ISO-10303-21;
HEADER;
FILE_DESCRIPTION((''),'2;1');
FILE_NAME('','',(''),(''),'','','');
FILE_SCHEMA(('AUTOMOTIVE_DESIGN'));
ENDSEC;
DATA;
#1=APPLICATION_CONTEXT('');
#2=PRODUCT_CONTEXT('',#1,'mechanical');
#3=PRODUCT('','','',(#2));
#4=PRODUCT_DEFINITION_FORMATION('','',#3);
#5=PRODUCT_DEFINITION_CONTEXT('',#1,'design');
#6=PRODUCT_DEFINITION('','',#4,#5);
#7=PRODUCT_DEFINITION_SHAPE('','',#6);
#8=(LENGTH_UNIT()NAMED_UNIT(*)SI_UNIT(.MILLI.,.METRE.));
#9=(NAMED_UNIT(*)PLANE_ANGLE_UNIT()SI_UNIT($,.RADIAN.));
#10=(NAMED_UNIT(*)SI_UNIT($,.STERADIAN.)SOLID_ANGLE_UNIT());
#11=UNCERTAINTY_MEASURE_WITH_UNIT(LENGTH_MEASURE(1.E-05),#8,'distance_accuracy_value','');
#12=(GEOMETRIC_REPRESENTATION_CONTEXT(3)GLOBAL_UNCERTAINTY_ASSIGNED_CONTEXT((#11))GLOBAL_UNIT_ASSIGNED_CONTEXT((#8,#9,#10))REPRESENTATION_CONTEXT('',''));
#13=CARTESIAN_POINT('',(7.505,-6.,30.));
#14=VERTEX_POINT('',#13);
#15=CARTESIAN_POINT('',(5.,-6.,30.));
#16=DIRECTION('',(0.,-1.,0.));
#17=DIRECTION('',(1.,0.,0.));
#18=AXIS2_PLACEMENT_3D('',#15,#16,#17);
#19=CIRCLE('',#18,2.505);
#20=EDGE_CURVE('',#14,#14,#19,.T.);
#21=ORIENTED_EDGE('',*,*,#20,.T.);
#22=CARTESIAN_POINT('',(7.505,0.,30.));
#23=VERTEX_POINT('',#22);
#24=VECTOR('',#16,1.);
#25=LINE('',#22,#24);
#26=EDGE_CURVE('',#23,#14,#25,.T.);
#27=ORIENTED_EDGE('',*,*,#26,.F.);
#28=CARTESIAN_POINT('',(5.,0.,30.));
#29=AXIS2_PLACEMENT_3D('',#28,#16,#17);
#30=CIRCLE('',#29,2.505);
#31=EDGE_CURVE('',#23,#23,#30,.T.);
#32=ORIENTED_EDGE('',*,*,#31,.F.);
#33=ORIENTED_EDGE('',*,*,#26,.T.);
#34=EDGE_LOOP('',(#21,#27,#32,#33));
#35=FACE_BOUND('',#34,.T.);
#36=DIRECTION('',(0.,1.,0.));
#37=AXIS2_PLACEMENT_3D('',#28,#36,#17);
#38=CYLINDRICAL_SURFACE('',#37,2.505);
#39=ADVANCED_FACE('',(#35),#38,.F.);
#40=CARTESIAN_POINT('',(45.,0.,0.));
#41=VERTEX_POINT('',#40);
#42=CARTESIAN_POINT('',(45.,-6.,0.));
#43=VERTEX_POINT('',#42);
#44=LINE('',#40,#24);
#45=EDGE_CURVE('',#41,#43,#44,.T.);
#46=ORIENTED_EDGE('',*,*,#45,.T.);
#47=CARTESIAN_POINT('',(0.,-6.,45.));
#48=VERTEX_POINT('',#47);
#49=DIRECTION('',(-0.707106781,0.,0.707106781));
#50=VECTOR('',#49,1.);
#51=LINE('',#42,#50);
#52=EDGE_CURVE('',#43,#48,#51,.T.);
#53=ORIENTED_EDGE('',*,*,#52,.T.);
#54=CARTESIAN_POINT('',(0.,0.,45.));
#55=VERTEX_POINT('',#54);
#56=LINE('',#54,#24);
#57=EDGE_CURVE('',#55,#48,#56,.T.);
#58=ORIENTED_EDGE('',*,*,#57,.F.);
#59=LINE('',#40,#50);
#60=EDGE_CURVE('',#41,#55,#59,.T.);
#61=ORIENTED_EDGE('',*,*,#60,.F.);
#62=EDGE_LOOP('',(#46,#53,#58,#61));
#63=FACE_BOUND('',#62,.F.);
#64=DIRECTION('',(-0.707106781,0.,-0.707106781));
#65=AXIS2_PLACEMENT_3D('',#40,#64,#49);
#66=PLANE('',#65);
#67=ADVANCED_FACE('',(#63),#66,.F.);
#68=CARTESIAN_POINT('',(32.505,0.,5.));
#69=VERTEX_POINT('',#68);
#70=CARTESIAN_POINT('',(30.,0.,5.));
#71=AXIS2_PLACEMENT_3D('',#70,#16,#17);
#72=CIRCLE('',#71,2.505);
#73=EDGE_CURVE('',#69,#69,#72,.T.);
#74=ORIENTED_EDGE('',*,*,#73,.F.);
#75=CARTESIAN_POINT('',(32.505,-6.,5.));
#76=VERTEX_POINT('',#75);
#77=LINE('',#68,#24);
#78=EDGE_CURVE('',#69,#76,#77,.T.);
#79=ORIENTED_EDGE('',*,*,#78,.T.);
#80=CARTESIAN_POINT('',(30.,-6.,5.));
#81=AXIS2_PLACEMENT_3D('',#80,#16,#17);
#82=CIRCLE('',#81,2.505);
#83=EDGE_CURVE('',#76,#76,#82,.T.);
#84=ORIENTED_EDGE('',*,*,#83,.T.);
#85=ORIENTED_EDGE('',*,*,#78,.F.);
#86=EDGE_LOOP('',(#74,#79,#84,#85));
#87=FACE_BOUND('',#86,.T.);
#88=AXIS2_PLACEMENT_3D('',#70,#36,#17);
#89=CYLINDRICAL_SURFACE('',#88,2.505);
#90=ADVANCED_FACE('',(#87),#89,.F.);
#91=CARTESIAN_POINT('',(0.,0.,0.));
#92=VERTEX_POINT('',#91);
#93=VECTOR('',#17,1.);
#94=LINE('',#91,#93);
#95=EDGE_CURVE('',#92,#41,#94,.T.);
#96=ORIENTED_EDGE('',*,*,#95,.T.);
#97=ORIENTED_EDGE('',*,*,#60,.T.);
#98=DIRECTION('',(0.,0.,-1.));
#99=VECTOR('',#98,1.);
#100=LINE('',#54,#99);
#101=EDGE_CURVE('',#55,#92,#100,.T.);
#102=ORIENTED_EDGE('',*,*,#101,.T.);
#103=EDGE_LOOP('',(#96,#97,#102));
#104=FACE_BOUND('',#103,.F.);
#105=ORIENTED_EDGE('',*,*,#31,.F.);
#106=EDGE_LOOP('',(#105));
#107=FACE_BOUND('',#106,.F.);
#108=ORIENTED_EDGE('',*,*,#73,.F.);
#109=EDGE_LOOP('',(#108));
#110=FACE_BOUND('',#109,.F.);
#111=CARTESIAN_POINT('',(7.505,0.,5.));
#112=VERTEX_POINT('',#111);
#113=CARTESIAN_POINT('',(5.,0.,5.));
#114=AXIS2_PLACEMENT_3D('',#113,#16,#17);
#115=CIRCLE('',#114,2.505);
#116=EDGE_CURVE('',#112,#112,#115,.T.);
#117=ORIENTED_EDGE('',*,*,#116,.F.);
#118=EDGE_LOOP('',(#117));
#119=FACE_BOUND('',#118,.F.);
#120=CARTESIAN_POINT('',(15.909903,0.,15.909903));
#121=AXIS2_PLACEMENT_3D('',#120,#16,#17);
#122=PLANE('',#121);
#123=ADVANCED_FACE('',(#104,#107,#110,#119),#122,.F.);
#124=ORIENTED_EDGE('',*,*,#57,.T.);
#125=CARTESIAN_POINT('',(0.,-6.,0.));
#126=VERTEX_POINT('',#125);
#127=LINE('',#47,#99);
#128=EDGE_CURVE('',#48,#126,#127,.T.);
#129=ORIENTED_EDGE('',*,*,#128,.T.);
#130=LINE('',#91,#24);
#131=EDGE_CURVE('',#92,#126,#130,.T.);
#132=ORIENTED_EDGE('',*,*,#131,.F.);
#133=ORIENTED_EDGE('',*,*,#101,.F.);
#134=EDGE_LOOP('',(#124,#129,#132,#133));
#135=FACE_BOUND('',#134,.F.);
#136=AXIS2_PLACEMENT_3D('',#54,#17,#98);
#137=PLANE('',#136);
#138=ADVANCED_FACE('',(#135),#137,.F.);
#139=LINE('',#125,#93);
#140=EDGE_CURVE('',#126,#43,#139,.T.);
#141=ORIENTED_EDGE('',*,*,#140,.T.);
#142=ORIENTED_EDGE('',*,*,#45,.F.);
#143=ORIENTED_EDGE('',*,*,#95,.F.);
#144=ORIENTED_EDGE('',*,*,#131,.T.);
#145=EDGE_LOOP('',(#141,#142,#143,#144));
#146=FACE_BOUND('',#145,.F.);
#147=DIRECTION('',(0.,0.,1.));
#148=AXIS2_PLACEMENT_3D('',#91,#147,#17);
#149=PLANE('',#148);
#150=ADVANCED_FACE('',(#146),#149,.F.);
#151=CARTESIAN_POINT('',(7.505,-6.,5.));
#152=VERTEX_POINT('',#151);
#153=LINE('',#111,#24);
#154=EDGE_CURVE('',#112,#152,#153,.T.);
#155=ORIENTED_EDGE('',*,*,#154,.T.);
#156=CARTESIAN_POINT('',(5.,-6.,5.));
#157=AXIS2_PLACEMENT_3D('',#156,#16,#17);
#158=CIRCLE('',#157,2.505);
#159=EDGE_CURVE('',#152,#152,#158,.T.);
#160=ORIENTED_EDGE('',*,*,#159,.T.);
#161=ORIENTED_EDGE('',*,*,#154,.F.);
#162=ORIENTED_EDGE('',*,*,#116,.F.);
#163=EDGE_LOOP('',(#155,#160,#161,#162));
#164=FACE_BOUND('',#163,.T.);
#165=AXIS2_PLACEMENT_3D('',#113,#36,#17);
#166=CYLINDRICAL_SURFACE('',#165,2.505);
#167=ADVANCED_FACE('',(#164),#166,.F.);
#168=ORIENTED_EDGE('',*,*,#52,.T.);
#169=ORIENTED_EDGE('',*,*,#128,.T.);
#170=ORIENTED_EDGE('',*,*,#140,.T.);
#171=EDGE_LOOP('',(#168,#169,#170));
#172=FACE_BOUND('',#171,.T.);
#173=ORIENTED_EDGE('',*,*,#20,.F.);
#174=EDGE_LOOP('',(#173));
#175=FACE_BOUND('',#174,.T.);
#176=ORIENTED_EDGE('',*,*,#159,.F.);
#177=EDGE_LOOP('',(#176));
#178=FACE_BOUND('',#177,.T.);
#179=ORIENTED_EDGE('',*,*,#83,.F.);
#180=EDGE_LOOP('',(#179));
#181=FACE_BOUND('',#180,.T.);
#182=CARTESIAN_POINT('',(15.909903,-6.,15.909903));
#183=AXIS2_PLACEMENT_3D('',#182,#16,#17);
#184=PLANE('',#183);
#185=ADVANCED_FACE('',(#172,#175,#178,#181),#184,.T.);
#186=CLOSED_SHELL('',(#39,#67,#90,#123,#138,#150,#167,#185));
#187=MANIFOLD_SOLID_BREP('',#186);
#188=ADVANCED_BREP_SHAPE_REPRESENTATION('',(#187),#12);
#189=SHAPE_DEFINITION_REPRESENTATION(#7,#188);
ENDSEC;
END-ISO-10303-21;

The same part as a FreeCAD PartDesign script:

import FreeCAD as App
import Part
import Sketcher

V = App.Vector

doc = App.newDocument("Part")
params = doc.addObject("Spreadsheet::Sheet", "Params")
for row, (alias, value) in enumerate([
    ("sketch1_diameter", "5.01 mm"),
    ("sketch1_width", "45 mm"),
    ("pad1_length", "6 mm"),
], start=1):
    params.set(f"A{row}", alias)
    params.set(f"B{row}", "=" + value)
    params.setAlias(f"B{row}", alias)

body = doc.addObject("PartDesign::Body", "Body")

sketch1 = doc.addObject("Sketcher::SketchObject", "Sketch")
body.addObject(sketch1)
sketch1.AttachmentSupport = (doc.XZ_Plane, [""])
sketch1.MapMode = "FlatFace"
sketch1.addGeometry([
    Part.LineSegment(V(0, 45, 0), V(0, 0, 0)),
    Part.LineSegment(V(0, 0, 0), V(45, 0, 0)),
    Part.LineSegment(V(45, 0, 0), V(0, 45, 0)),
    Part.Circle(V(5, 5, 0), V(0, 0, 1), 2.505),
    Part.Circle(V(30, 5, 0), V(0, 0, 1), 2.505),
    Part.Circle(V(5, 30, 0), V(0, 0, 1), 2.505),
], False)
sketch1.addConstraint([
    Sketcher.Constraint("Coincident", 0, 2, 1, 1),
    Sketcher.Constraint("Coincident", 1, 2, 2, 1),
    Sketcher.Constraint("Coincident", 2, 2, 0, 1),
    Sketcher.Constraint("Vertical", 0),
    Sketcher.Constraint("Horizontal", 1),
    Sketcher.Constraint("Coincident", 0, 2, -1, 1),
    Sketcher.Constraint("Equal", 3, 4),
    Sketcher.Constraint("Equal", 4, 5),
    Sketcher.Constraint("Horizontal", 3, 3, 4, 3),
    Sketcher.Constraint("Vertical", 3, 3, 5, 3),
    Sketcher.Constraint("Equal", 1, 0),
    Sketcher.Constraint("Diameter", 3, 5.01),
    Sketcher.Constraint("DistanceX", 1, 1, 1, 2, 45.0),
    Sketcher.Constraint("DistanceX", -1, 1, 3, 3, 5.0),
    Sketcher.Constraint("DistanceY", -1, 1, 3, 3, 5.0),
    Sketcher.Constraint("DistanceX", -1, 1, 4, 3, 30.0),
    Sketcher.Constraint("DistanceY", -1, 1, 5, 3, 30.0),
])
sketch1.setExpression("Constraints[11]", "Params.sketch1_diameter")
sketch1.setExpression("Constraints[12]", "Params.sketch1_width")
pad1 = doc.addObject("PartDesign::Pad", "Pad")
body.addObject(pad1)
pad1.Profile = sketch1
pad1.setExpression("Length", "Params.pad1_length")

doc.recompute()
